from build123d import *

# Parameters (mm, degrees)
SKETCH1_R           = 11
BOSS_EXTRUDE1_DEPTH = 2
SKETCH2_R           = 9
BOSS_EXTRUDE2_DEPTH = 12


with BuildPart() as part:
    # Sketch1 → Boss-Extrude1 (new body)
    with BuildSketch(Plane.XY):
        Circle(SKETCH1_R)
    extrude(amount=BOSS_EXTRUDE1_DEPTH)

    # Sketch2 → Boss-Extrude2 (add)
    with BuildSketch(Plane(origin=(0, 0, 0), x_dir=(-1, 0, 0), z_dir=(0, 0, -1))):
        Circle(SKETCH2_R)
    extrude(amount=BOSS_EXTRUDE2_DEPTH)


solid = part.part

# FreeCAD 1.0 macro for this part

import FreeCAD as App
import Part
import Sketcher

doc = App.newDocument("Part")
body = doc.addObject("PartDesign::Body", "Body")

# Sketch on XY plane
sketch1 = doc.addObject("Sketcher::SketchObject", "Sketch")
body.addObject(sketch1)
sketch1.AttachmentSupport = (doc.XY_Plane, [""])
sketch1.MapMode = "FlatFace"
sketch1.addGeometry(Part.Circle(App.Vector(0, 0, 0), App.Vector(0, 0, 1), 11), False)
sketch1.addConstraint([
    Sketcher.Constraint("Coincident", 0, 3, -1, 1),
    Sketcher.Constraint("Diameter", 0, 22.0),
])
pad1 = doc.addObject("PartDesign::Pad", "Pad")
body.addObject(pad1)
pad1.Profile = sketch1
pad1.Length = 2

# Sketch on XY plane
sketch2 = doc.addObject("Sketcher::SketchObject", "Sketch001")
body.addObject(sketch2)
sketch2.AttachmentSupport = (doc.XY_Plane, [""])
sketch2.MapMode = "FlatFace"
sketch2.addGeometry(Part.Circle(App.Vector(0, 0, 0), App.Vector(0, 0, 1), 9), False)
sketch2.addConstraint([
    Sketcher.Constraint("Coincident", 0, 3, -1, 1),
    Sketcher.Constraint("Diameter", 0, 18.0),
])
pad2 = doc.addObject("PartDesign::Pad", "Pad001")
body.addObject(pad2)
pad2.Profile = sketch2
pad2.Length = 12
pad2.Reversed = True

doc.recompute()
